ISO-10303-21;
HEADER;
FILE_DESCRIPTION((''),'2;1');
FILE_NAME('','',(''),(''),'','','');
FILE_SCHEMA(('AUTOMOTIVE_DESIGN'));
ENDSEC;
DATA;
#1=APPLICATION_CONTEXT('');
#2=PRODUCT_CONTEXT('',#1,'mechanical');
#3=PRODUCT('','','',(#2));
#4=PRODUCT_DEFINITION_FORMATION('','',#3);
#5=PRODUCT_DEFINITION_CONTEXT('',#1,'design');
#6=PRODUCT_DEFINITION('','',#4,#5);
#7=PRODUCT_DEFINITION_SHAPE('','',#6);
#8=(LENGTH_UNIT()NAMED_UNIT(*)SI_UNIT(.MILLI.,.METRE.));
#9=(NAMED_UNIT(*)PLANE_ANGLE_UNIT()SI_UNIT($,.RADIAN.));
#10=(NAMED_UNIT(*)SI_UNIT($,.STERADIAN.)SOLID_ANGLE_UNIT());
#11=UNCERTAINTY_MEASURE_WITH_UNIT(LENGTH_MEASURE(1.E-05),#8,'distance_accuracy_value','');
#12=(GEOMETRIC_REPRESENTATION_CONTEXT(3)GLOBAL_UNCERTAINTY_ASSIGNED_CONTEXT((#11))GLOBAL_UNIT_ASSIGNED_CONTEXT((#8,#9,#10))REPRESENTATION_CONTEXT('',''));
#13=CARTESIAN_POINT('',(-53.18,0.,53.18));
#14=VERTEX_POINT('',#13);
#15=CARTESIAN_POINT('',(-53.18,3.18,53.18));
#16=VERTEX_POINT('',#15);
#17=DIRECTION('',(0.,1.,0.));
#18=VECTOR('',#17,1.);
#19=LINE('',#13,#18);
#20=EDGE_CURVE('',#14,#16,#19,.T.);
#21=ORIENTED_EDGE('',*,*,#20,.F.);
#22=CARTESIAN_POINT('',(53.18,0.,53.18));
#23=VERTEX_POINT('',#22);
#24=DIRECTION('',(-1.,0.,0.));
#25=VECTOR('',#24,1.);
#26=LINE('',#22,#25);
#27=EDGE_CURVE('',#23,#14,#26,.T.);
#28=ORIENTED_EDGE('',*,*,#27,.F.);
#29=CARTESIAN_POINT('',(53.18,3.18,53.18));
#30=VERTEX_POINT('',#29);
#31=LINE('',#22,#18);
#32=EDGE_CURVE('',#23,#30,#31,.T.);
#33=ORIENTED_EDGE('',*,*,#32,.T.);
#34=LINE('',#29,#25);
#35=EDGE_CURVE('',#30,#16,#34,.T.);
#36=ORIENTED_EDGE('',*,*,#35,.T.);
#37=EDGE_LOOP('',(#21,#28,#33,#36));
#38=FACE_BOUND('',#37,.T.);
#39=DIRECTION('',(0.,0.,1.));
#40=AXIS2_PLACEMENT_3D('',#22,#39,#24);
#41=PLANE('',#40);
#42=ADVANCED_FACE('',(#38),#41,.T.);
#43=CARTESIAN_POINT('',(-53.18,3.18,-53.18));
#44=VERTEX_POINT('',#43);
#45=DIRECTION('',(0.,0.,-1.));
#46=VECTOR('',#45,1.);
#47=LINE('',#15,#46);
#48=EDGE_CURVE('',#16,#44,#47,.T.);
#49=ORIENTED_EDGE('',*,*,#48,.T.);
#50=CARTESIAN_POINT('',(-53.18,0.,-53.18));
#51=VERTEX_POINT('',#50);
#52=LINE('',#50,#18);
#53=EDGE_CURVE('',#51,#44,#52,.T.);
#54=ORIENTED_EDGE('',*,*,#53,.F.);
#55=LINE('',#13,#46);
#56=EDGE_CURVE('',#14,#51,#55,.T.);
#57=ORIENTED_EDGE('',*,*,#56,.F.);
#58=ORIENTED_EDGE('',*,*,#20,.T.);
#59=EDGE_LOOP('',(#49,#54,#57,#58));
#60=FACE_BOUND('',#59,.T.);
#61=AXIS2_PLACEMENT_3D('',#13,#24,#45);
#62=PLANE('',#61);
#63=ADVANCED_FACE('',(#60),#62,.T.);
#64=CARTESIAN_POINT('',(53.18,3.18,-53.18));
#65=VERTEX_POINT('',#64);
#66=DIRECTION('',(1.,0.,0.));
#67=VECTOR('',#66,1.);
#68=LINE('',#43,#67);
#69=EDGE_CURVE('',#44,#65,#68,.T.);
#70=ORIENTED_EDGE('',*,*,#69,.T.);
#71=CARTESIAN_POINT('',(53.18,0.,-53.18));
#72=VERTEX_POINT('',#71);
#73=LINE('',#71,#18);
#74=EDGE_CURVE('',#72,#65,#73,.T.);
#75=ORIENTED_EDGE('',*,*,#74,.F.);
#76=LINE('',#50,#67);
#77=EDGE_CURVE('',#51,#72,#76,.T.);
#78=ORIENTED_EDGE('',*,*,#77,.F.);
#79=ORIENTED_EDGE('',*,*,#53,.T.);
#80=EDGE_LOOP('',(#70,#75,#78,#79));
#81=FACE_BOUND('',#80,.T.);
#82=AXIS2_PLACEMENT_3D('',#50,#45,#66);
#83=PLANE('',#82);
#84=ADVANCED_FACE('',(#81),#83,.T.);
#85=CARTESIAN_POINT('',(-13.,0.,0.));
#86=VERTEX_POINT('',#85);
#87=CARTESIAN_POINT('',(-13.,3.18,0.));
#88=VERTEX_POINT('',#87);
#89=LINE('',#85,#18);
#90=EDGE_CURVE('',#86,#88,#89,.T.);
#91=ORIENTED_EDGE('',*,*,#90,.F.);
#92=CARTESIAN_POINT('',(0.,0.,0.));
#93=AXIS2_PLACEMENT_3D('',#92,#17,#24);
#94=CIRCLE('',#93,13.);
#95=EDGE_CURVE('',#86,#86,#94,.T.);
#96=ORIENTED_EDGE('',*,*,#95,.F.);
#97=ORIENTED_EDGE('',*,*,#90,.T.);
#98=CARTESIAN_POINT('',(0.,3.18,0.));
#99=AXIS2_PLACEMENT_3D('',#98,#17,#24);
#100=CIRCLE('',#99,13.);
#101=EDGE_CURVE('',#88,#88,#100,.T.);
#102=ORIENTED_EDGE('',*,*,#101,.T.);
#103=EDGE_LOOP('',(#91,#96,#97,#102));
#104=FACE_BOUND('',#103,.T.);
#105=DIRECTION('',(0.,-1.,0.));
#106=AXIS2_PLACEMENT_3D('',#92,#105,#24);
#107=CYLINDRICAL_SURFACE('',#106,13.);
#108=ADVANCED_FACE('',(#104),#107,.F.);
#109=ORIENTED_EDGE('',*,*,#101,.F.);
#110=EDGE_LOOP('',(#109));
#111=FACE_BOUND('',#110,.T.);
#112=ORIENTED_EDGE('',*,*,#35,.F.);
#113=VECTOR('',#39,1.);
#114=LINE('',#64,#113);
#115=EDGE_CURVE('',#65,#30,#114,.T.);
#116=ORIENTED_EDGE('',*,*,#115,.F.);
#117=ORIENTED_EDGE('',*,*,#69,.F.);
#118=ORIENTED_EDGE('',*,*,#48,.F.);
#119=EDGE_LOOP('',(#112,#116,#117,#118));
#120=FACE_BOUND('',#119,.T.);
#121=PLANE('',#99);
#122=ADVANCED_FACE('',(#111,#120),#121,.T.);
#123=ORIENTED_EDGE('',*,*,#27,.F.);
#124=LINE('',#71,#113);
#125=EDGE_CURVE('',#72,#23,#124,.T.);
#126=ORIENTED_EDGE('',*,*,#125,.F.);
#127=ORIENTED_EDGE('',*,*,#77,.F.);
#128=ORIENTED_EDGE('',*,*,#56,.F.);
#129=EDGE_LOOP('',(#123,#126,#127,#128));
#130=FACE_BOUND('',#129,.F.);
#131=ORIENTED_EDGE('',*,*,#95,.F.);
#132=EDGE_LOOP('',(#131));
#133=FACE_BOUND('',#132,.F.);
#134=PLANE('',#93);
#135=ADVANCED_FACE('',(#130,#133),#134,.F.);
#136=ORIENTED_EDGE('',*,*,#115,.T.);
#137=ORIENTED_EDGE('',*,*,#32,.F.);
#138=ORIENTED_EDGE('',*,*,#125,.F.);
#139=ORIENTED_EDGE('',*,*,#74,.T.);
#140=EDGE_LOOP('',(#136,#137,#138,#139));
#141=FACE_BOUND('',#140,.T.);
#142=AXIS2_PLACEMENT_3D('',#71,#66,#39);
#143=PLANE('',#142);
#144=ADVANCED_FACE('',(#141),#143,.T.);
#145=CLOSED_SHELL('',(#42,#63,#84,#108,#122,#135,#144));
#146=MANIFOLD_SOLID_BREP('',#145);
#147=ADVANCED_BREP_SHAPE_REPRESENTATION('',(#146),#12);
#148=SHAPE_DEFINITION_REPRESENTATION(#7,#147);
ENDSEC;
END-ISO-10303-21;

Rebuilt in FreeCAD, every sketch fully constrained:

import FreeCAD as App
import Part
import Sketcher
from FreeCAD import Vector

doc = App.newDocument("Part")
body = doc.addObject("PartDesign::Body", "Body")

sketch1 = body.newObject("Sketcher::SketchObject", "Sketch")
sketch1.AttachmentSupport = (doc.getObject("XZ_Plane"), [""])
sketch1.MapMode = "FlatFace"
sketch1.addGeometry(Part.LineSegment(Vector(-53, 53, 0), Vector(53, 53, 0)), False)
sketch1.addGeometry(Part.LineSegment(Vector(53, 53, 0), Vector(53, -53, 0)), False)
sketch1.addGeometry(Part.LineSegment(Vector(53, -53, 0), Vector(-53, -53, 0)), False)
sketch1.addGeometry(Part.LineSegment(Vector(-53, -53, 0), Vector(-53, 53, 0)), False)
sketch1.addGeometry(Part.Circle(Vector(0, 0, 0), Vector(0, 0, 1), 13), False)
sketch1.addConstraint(Sketcher.Constraint("Coincident", 0, 2, 1, 1))
sketch1.addConstraint(Sketcher.Constraint("Coincident", 1, 2, 2, 1))
sketch1.addConstraint(Sketcher.Constraint("Coincident", 2, 2, 3, 1))
sketch1.addConstraint(Sketcher.Constraint("Coincident", 3, 2, 0, 1))
sketch1.addConstraint(Sketcher.Constraint("Horizontal", 0))
sketch1.addConstraint(Sketcher.Constraint("Vertical", 1))
sketch1.addConstraint(Sketcher.Constraint("Horizontal", 2))
sketch1.addConstraint(Sketcher.Constraint("Vertical", 3))
sketch1.addConstraint(Sketcher.Constraint("Coincident", 4, 3, -1, 1))
sketch1.addConstraint(Sketcher.Constraint("Symmetric", 0, 2, 2, 2, -1, 1))
sketch1.addConstraint(Sketcher.Constraint("Equal", 2, 1))
sketch1.addConstraint(Sketcher.Constraint("Diameter", 4, 26.0))
sketch1.addConstraint(Sketcher.Constraint("DistanceX", 0, 1, 0, 2, 106.36))
pad1 = body.newObject("PartDesign::Pad", "Pad")
pad1.Profile = sketch1
pad1.Length = 3.18
pad1.Reversed = True

doc.recompute()
